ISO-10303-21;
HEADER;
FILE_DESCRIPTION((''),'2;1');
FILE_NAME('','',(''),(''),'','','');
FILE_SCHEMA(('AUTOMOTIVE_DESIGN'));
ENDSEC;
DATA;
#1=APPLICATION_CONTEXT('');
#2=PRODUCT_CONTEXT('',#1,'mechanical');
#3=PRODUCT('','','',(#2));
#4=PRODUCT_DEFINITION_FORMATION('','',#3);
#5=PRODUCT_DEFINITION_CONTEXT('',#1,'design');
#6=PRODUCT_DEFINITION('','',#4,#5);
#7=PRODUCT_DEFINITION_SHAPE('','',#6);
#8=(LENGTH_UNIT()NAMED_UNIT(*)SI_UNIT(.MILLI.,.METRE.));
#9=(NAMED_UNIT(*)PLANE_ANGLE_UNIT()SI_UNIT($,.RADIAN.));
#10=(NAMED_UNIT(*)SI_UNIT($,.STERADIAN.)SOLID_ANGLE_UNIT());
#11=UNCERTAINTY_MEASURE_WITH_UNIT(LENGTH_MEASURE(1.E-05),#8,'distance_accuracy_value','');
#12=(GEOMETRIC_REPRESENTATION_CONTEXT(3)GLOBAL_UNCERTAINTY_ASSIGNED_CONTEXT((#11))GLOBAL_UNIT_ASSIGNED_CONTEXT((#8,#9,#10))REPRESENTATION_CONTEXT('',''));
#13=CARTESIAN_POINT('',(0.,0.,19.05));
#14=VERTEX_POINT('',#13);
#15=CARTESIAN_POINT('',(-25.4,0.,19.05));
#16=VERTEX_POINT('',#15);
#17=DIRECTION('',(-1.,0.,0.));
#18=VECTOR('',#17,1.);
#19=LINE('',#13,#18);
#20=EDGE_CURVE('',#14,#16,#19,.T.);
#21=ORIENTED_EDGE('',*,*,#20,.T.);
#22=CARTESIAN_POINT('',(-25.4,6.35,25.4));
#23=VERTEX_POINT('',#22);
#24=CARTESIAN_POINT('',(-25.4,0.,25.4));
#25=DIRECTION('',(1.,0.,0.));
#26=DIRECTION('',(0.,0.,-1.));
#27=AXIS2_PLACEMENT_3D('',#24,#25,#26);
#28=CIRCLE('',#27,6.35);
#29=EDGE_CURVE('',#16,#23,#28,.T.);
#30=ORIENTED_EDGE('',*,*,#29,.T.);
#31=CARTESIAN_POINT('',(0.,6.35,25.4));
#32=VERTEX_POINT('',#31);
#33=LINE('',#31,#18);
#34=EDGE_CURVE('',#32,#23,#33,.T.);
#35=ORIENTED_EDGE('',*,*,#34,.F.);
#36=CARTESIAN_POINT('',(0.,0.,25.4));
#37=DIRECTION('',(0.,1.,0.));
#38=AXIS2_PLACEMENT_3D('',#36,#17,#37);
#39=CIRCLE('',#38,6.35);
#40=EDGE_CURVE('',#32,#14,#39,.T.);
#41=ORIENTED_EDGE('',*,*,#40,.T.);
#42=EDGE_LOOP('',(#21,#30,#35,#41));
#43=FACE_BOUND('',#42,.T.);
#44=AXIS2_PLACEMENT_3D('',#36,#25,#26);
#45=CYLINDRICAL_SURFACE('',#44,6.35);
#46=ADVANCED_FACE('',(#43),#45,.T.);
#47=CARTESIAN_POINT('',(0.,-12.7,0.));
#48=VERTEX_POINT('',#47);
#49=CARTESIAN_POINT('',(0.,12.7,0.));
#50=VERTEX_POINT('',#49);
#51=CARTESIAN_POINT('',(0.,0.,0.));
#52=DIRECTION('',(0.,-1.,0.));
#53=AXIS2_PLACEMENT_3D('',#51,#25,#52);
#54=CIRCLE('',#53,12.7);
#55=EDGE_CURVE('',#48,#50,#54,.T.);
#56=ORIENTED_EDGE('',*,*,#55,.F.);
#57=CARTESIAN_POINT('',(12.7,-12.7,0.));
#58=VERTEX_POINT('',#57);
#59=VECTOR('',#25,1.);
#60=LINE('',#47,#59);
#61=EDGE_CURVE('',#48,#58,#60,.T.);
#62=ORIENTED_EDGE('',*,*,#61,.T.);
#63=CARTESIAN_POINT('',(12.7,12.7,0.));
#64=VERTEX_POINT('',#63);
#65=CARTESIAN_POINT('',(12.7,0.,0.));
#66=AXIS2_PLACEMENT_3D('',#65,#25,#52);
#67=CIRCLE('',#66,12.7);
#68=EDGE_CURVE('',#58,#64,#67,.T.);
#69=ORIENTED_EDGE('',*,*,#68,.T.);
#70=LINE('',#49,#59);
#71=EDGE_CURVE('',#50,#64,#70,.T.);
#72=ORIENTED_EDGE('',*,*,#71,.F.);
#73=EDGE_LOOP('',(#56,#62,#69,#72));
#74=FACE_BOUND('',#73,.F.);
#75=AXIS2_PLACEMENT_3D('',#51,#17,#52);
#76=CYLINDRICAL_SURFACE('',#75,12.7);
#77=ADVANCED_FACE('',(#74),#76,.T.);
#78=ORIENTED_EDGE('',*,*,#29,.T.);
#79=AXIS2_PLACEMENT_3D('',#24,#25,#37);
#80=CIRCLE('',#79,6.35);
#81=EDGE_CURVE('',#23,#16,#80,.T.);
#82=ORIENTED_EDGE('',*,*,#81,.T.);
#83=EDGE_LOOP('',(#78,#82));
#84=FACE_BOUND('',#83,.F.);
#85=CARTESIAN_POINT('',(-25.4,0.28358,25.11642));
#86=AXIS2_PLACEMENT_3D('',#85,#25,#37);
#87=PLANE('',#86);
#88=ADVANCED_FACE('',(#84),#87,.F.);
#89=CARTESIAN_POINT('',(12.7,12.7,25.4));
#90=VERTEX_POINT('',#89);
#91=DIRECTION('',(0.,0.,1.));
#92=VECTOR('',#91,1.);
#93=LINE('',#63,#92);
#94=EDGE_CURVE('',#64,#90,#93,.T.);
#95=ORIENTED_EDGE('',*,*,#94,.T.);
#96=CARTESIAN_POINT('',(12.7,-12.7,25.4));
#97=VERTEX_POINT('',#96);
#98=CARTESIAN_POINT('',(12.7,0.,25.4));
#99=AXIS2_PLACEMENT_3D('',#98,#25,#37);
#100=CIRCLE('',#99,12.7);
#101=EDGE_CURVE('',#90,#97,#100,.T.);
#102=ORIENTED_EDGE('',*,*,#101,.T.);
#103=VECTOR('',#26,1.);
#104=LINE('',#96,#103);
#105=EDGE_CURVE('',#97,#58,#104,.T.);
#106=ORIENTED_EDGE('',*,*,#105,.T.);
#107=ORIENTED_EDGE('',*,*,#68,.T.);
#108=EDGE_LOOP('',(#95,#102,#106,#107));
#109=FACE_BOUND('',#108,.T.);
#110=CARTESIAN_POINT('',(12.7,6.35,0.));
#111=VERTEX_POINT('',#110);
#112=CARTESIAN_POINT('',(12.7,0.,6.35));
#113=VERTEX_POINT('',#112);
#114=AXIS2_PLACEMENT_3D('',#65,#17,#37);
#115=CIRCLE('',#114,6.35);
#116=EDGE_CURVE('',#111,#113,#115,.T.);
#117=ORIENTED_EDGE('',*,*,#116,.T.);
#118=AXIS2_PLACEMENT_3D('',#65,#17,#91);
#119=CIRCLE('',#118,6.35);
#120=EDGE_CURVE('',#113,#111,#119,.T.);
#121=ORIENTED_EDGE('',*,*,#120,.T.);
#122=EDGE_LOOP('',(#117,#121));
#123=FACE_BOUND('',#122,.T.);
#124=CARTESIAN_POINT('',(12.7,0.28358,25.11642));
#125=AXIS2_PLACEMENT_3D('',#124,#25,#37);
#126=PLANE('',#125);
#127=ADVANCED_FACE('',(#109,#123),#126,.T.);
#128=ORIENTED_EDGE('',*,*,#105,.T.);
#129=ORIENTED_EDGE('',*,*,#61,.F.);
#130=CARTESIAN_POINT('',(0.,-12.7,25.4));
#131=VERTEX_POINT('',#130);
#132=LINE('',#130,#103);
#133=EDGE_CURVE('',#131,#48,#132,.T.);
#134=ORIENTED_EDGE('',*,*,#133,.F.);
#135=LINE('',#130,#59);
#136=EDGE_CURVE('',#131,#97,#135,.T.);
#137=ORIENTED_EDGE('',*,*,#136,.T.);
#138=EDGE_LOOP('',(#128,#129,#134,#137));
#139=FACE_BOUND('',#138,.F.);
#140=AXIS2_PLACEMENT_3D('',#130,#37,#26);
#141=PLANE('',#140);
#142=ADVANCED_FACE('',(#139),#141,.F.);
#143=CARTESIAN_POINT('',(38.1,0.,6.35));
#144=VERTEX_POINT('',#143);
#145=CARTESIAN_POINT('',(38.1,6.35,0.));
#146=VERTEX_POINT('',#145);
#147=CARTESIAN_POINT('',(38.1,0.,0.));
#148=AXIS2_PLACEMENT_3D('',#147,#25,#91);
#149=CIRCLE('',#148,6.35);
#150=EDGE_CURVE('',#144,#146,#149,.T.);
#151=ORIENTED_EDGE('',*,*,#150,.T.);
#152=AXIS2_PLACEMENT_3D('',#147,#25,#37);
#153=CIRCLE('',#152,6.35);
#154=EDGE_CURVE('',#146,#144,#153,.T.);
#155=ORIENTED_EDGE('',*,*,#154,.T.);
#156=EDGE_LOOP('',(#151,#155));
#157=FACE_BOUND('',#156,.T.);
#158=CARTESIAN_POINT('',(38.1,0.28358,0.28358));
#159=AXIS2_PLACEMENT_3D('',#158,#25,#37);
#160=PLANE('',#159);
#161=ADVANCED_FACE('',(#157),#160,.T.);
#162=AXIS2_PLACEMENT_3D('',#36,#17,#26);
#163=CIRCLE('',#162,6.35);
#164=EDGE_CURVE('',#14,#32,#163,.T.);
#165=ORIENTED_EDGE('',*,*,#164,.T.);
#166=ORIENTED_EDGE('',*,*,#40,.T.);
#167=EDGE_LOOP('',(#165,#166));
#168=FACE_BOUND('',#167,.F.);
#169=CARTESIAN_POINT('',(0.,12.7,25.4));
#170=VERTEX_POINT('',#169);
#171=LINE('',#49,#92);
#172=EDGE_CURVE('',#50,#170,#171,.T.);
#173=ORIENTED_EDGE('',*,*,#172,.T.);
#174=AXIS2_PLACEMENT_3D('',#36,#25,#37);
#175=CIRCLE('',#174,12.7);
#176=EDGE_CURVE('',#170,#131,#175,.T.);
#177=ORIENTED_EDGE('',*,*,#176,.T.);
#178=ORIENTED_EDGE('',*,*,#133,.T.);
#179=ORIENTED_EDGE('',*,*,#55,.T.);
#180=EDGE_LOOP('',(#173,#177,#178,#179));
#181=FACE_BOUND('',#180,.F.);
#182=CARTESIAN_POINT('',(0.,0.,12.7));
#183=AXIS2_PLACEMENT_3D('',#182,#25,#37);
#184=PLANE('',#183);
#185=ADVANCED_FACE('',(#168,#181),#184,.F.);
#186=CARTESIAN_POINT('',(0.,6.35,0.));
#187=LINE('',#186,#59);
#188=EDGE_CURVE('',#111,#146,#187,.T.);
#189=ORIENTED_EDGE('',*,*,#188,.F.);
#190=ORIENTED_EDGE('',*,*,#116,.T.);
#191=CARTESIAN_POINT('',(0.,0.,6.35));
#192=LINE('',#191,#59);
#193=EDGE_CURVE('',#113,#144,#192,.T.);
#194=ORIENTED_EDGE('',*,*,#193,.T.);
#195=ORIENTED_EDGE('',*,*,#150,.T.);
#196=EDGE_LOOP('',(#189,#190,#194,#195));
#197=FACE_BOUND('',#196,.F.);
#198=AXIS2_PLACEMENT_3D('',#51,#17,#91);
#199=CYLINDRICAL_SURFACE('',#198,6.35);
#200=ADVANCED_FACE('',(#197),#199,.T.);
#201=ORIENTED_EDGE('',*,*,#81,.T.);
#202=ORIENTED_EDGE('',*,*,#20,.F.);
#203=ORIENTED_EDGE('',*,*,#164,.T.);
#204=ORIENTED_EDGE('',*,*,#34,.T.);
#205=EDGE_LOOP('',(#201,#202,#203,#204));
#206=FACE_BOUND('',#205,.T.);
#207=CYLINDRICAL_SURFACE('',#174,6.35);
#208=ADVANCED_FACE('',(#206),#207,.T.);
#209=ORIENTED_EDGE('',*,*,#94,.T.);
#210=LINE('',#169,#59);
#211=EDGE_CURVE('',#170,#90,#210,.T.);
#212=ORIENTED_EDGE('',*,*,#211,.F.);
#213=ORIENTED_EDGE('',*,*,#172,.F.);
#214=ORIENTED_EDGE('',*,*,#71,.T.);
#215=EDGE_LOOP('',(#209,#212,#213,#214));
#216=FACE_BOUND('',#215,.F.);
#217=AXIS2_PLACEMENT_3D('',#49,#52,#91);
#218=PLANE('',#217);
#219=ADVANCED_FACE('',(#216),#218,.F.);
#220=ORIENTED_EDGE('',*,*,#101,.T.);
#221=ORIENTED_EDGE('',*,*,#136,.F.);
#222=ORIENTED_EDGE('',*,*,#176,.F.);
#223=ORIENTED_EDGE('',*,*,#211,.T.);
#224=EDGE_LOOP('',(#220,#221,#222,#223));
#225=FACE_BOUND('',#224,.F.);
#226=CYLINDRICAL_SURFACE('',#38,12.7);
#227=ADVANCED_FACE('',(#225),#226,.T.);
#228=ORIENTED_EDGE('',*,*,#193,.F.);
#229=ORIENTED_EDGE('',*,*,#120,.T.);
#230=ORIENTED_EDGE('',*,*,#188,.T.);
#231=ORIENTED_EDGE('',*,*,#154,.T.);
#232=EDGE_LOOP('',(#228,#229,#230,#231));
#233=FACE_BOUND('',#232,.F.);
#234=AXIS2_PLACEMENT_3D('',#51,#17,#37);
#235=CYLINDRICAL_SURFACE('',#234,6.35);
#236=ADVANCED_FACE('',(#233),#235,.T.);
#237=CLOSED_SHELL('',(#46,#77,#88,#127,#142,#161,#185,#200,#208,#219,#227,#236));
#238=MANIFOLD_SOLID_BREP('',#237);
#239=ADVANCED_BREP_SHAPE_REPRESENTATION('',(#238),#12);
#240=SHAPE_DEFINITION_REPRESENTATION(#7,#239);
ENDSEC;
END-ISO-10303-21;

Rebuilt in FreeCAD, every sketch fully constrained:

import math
import FreeCAD as App
import Part
import Sketcher
Q = App.Units.Quantity

doc = App.newDocument("Part")
body = doc.addObject("PartDesign::Body", "Body")

sketch1 = doc.addObject("Sketcher::SketchObject", "Sketch")
body.addObject(sketch1)
sketch1.AttachmentSupport = (doc.YZ_Plane, [""])
sketch1.MapMode = "FlatFace"
sketch1.addGeometry(Part.ArcOfCircle(Part.Circle(App.Vector(0, 25.4, 0), App.Vector(0, 0, 1), 12.7), math.radians(0), math.radians(180)), False)
sketch1.addGeometry(Part.LineSegment(App.Vector(-12.7, 25.4, 0), App.Vector(-12.7, 0, 0)), False)
sketch1.addGeometry(Part.ArcOfCircle(Part.Circle(App.Vector(0, 0, 0), App.Vector(0, 0, 1), 12.7), math.radians(180), math.radians(360)), False)
sketch1.addGeometry(Part.LineSegment(App.Vector(12.7, 0, 0), App.Vector(12.7, 25.4, 0)), False)
sketch1.addGeometry(Part.ArcOfCircle(Part.Circle(App.Vector(0, 0, 0), App.Vector(0, 0, 1), 6.35), math.radians(90), math.radians(360)), False)
sketch1.addGeometry(Part.ArcOfCircle(Part.Circle(App.Vector(0, 0, 0), App.Vector(0, 0, 1), 6.35), math.radians(0), math.radians(90)), False)
sketch1.addGeometry(Part.ArcOfCircle(Part.Circle(App.Vector(0, 25.4, 0), App.Vector(0, 0, 1), 6.35), math.radians(0), math.radians(270)), False)
sketch1.addGeometry(Part.ArcOfCircle(Part.Circle(App.Vector(0, 25.4, 0), App.Vector(0, 0, 1), 6.35), math.radians(-90), math.radians(0)), False)
sketch1.addConstraint(Sketcher.Constraint("Tangent", 0, 2, 1, 1))
sketch1.addConstraint(Sketcher.Constraint("Tangent", 1, 2, 2, 1))
sketch1.addConstraint(Sketcher.Constraint("Tangent", 2, 2, 3, 1))
sketch1.addConstraint(Sketcher.Constraint("Tangent", 3, 2, 0, 1))
sketch1.addConstraint(Sketcher.Constraint("Tangent", 4, 1, 5, 2))
sketch1.addConstraint(Sketcher.Constraint("Coincident", 5, 1, 4, 2))
sketch1.addConstraint(Sketcher.Constraint("Tangent", 6, 1, 7, 2))
sketch1.addConstraint(Sketcher.Constraint("Coincident", 7, 1, 6, 2))
sketch1.addConstraint(Sketcher.Constraint("Vertical", 1))
sketch1.addConstraint(Sketcher.Constraint("Vertical", 3))
sketch1.addConstraint(Sketcher.Constraint("Coincident", 2, 3, -1, 1))
sketch1.addConstraint(Sketcher.Constraint("Coincident", 4, 3, -1, 1))
sketch1.addConstraint(Sketcher.Constraint("Coincident", 6, 3, 0, 3))
sketch1.addConstraint(Sketcher.Constraint("Equal", 5, 6))
sketch1.addConstraint(Sketcher.Constraint("PointOnObject", 4, 1, -2))
sketch1.addConstraint(Sketcher.Constraint("PointOnObject", 5, 1, -1))
sketch1.addConstraint(Sketcher.Constraint("PointOnObject", 7, 1, -2))
sketch1.addConstraint(Sketcher.Constraint("Horizontal", 3, 2, 6, 1))
sketch1.addConstraint(Sketcher.Constraint("Radius", 0, Q("0.5 in")))
sketch1.addConstraint(Sketcher.Constraint("DistanceY", 1, 2, 1, 1, Q("1 in")))
sketch1.addConstraint(Sketcher.Constraint("Radius", 4, Q("0.25 in")))
pad1 = doc.addObject("PartDesign::Pad", "Pad")
body.addObject(pad1)
pad1.Profile = sketch1
pad1.Length = Q("0.5 in")

sketch2 = doc.addObject("Sketcher::SketchObject", "Sketch001")
body.addObject(sketch2)
sketch2.AttachmentSupport = (doc.YZ_Plane, [""])
sketch2.MapMode = "FlatFace"
sketch2.addGeometry(Part.ArcOfCircle(Part.Circle(App.Vector(0, 0, 0), App.Vector(0, 0, 1), 6.35), math.radians(90), math.radians(360)), False)
sketch2.addGeometry(Part.ArcOfCircle(Part.Circle(App.Vector(0, 0, 0), App.Vector(0, 0, 1), 6.35), math.radians(0), math.radians(90)), False)
sketch2.addConstraint(Sketcher.Constraint("Tangent", 0, 1, 1, 2))
sketch2.addConstraint(Sketcher.Constraint("Coincident", 1, 1, 0, 2))
sketch2.addConstraint(Sketcher.Constraint("Coincident", 0, 3, -1, 1))
sketch2.addConstraint(Sketcher.Constraint("PointOnObject", 0, 1, -2))
sketch2.addConstraint(Sketcher.Constraint("PointOnObject", 1, 1, -1))
sketch2.addConstraint(Sketcher.Constraint("Radius", 0, Q("0.25 in")))
pad2 = doc.addObject("PartDesign::Pad", "Pad001")
body.addObject(pad2)
pad2.Profile = sketch2
pad2.Length = Q("1.5 in")

sketch3 = doc.addObject("Sketcher::SketchObject", "Sketch002")
body.addObject(sketch3)
sketch3.AttachmentSupport = (doc.YZ_Plane, [""])
sketch3.MapMode = "FlatFace"
sketch3.addGeometry(Part.ArcOfCircle(Part.Circle(App.Vector(0, 25.4, 0), App.Vector(0, 0, 1), 6.35), math.radians(0), math.radians(270)), False)
sketch3.addGeometry(Part.ArcOfCircle(Part.Circle(App.Vector(0, 25.4, 0), App.Vector(0, 0, 1), 6.35), math.radians(-90), math.radians(0)), False)
sketch3.addConstraint(Sketcher.Constraint("Tangent", 0, 1, 1, 2))
sketch3.addConstraint(Sketcher.Constraint("Coincident", 1, 1, 0, 2))
sketch3.addConstraint(Sketcher.Constraint("PointOnObject", 0, 3, -2))
sketch3.addConstraint(Sketcher.Constraint("PointOnObject", 1, 1, -2))
sketch3.addConstraint(Sketcher.Constraint("Horizontal", 1, 3, 0, 1))
sketch3.addConstraint(Sketcher.Constraint("Radius", 0, Q("0.25 in")))
sketch3.addConstraint(Sketcher.Constraint("DistanceY", -1, 1, 0, 3, Q("1 in")))
pad3 = doc.addObject("PartDesign::Pad", "Pad002")
body.addObject(pad3)
pad3.Profile = sketch3
pad3.Type = "TwoLengths"
pad3.Length = Q("1 in")
pad3.Length2 = Q("0.5 in")
pad3.Reversed = True

doc.recompute()
